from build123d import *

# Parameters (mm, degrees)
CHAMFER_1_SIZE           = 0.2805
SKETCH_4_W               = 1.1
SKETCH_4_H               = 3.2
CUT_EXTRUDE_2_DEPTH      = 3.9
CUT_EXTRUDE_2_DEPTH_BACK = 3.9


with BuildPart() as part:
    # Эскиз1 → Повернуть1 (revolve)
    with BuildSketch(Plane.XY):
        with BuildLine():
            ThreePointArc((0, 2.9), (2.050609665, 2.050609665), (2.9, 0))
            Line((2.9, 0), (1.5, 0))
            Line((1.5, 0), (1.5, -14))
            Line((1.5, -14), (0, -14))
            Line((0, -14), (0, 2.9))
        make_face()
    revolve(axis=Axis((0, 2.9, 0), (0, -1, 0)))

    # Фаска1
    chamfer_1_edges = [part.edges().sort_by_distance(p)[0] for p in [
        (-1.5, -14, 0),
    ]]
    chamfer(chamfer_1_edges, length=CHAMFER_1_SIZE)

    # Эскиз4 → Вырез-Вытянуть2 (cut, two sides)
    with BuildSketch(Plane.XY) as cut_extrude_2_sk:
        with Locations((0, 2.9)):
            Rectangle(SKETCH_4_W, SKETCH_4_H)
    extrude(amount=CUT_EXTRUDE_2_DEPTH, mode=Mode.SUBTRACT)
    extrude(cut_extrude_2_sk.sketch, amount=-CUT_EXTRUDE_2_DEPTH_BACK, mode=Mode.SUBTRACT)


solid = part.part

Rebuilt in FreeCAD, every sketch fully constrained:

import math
import FreeCAD as App
import Part
import Sketcher

V = App.Vector
Q = App.Units.Quantity


def edges_at(feature, points):
    """Names of the edges that pass closest to the given points."""
    edges = feature.Shape.Edges
    near = lambda p: min(range(len(edges)), key=lambda i: edges[i].distToShape(Part.Vertex(*p))[0])
    return sorted({f"Edge{near(p) + 1}" for p in points})

doc = App.newDocument("Part")
body = doc.addObject("PartDesign::Body", "Body")

sketch1 = body.newObject("Sketcher::SketchObject", "Sketch")
sketch1.AttachmentSupport = (doc.getObject("XY_Plane"), [""])
sketch1.MapMode = "FlatFace"
sketch1.addGeometry(Part.ArcOfCircle(Part.Circle(V(0, 0, 0), V(0, 0, 1), 2.9), math.radians(0), math.radians(90)), False)
sketch1.addGeometry(Part.LineSegment(V(0, 2.9, 0), V(0, -14, 0)), False)
sketch1.addGeometry(Part.LineSegment(V(0, -14, 0), V(1.5, -14, 0)), False)
sketch1.addGeometry(Part.LineSegment(V(1.5, -14, 0), V(1.5, 0, 0)), False)
sketch1.addGeometry(Part.LineSegment(V(1.5, 0, 0), V(2.9, 0, 0)), False)
sketch1.addConstraint(Sketcher.Constraint("Coincident", 0, 2, 1, 1))
sketch1.addConstraint(Sketcher.Constraint("Coincident", 1, 2, 2, 1))
sketch1.addConstraint(Sketcher.Constraint("Coincident", 2, 2, 3, 1))
sketch1.addConstraint(Sketcher.Constraint("Coincident", 3, 2, 4, 1))
sketch1.addConstraint(Sketcher.Constraint("Coincident", 4, 2, 0, 1))
sketch1.addConstraint(Sketcher.Constraint("Vertical", 1))
sketch1.addConstraint(Sketcher.Constraint("Horizontal", 2))
sketch1.addConstraint(Sketcher.Constraint("Vertical", 3))
sketch1.addConstraint(Sketcher.Constraint("Horizontal", 4))
sketch1.addConstraint(Sketcher.Constraint("Coincident", 0, 3, -1, 1))
sketch1.addConstraint(Sketcher.Constraint("PointOnObject", 0, 2, -2))
sketch1.addConstraint(Sketcher.Constraint("PointOnObject", 3, 2, -1))
sketch1.addConstraint(Sketcher.Constraint("Radius", 0, Q("2.9 mm")))
sketch1.addConstraint(Sketcher.Constraint("DistanceY", 3, 1, 3, 2, Q("14 mm")))
sketch1.addConstraint(Sketcher.Constraint("DistanceX", 2, 1, 2, 2, Q("1.5 mm")))
revolution = body.newObject("PartDesign::Revolution", "Revolution")
revolution.Profile = sketch1
revolution.ReferenceAxis = (sketch1, ["V_Axis"])
revolution.Angle = 360
doc.recompute()

chamfer = body.newObject("PartDesign::Chamfer", "Chamfer")
chamfer.Base = (revolution, edges_at(revolution, [(-1.5, -14, 0)]))
chamfer.Size = 0.2805

sketch2 = body.newObject("Sketcher::SketchObject", "Sketch001")
sketch2.AttachmentSupport = (doc.getObject("XY_Plane"), [""])
sketch2.MapMode = "FlatFace"
sketch2.addGeometry(Part.LineSegment(V(-0.55, 4.5, 0), V(-0.55, 1.3, 0)), False)
sketch2.addGeometry(Part.LineSegment(V(-0.55, 1.3, 0), V(0.55, 1.3, 0)), False)
sketch2.addGeometry(Part.LineSegment(V(0.55, 1.3, 0), V(0.55, 4.5, 0)), False)
sketch2.addGeometry(Part.LineSegment(V(0.55, 4.5, 0), V(-0.55, 4.5, 0)), False)
sketch2.addConstraint(Sketcher.Constraint("Coincident", 0, 2, 1, 1))
sketch2.addConstraint(Sketcher.Constraint("Coincident", 1, 2, 2, 1))
sketch2.addConstraint(Sketcher.Constraint("Coincident", 2, 2, 3, 1))
sketch2.addConstraint(Sketcher.Constraint("Coincident", 3, 2, 0, 1))
sketch2.addConstraint(Sketcher.Constraint("Vertical", 0))
sketch2.addConstraint(Sketcher.Constraint("Horizontal", 1))
sketch2.addConstraint(Sketcher.Constraint("Vertical", 2))
sketch2.addConstraint(Sketcher.Constraint("Horizontal", 3))
sketch2.addConstraint(Sketcher.Constraint("DistanceX", 1, 1, 1, 2, Q("1.1 mm")))
sketch2.addConstraint(Sketcher.Constraint("DistanceY", 0, 2, 0, 1, Q("3.2 mm")))
sketch2.addConstraint(Sketcher.Constraint("DistanceY", -1, 1, 0, 2, Q("1.3 mm")))
sketch2.addConstraint(Sketcher.Constraint("DistanceX", 0, 2, -1, 1, Q("0.55 mm")))
pocket1 = body.newObject("PartDesign::Pocket", "Pocket")
pocket1.Profile = sketch2
pocket1.Type = "ThroughAll"
pocket1.Midplane = True

doc.recompute()
